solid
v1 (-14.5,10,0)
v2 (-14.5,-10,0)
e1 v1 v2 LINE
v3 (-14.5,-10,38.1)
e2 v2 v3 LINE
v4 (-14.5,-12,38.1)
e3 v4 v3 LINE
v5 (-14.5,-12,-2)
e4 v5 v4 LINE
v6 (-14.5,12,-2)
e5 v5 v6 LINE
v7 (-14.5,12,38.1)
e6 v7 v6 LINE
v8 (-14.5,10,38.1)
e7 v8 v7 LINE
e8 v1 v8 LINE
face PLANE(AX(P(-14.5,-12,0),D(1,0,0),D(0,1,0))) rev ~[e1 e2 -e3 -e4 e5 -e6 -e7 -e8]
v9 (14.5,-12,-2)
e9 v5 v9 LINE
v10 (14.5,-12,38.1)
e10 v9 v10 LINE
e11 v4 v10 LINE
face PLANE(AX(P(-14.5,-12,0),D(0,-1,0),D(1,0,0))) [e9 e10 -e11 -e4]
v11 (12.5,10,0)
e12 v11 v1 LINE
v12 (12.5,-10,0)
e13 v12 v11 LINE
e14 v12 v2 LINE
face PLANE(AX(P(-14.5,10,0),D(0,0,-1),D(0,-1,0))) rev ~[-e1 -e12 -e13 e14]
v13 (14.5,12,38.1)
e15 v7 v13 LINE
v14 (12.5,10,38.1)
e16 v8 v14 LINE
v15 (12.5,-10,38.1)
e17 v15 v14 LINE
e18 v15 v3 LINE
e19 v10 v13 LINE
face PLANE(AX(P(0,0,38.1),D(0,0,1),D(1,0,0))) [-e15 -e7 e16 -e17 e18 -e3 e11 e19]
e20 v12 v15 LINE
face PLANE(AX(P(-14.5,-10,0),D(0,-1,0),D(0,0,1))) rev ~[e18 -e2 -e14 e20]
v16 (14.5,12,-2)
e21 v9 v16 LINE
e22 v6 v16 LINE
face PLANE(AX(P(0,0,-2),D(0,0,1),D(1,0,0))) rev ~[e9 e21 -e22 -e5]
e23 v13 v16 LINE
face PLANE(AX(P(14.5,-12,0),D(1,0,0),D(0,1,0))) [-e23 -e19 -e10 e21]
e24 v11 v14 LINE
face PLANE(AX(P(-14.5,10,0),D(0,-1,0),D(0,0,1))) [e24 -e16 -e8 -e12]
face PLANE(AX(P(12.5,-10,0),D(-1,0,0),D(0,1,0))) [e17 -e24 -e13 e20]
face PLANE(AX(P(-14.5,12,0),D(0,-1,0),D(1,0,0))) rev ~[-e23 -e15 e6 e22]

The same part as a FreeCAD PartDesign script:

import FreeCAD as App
import Part
import Sketcher
Q = App.Units.Quantity

doc = App.newDocument("Part")
params = doc.addObject("Spreadsheet::Sheet", "Params")
for row, (alias, value) in enumerate([
    ("sketch1_width", "29 mm"),
    ("sketch1_width2", "25 mm"),
    ("sketch1_height", "24 mm"),
    ("sketch1_height2", "20 mm"),
    ("pad1_length", "38.1 mm"),
    ("sketch2_width", "29 mm"),
    ("sketch2_height", "24 mm"),
    ("pad2_length", "2 mm"),
    ("sketch3_width", "20 mm"),
    ("sketch3_height", "38.1 mm"),
    ("pocket1_length", "2 mm"),
], start=1):
    params.set(f"A{row}", alias)
    params.set(f"B{row}", "=" + value)
    params.setAlias(f"B{row}", alias)

body = doc.addObject("PartDesign::Body", "Body")

# Sketch on XY plane
sketch1 = body.newObject("Sketcher::SketchObject", "Sketch")
sketch1.AttachmentSupport = (doc.getObject("XY_Plane"), [""])
sketch1.MapMode = "FlatFace"
sketch1.addGeometry([
    Part.LineSegment(App.Vector(-14, 12, 0), App.Vector(-14, -12, 0)),  # 0
    Part.LineSegment(App.Vector(-14, -12, 0), App.Vector(14, -12, 0)),  # 1
    Part.LineSegment(App.Vector(14, -12, 0), App.Vector(14, 12, 0)),  # 2
    Part.LineSegment(App.Vector(14, 12, 0), App.Vector(-14, 12, 0)),  # 3
    Part.LineSegment(App.Vector(12, -10, 0), App.Vector(-12, -10, 0)),  # 4
    Part.LineSegment(App.Vector(-12, -10, 0), App.Vector(-12, 10, 0)),  # 5
    Part.LineSegment(App.Vector(-12, 10, 0), App.Vector(12, 10, 0)),  # 6
    Part.LineSegment(App.Vector(12, 10, 0), App.Vector(12, -10, 0)),  # 7
], False)
sketch1.addConstraint([
    Sketcher.Constraint("Coincident", 0, 2, 1, 1),
    Sketcher.Constraint("Coincident", 1, 2, 2, 1),
    Sketcher.Constraint("Coincident", 2, 2, 3, 1),
    Sketcher.Constraint("Coincident", 3, 2, 0, 1),
    Sketcher.Constraint("Coincident", 4, 2, 5, 1),
    Sketcher.Constraint("Coincident", 5, 2, 6, 1),
    Sketcher.Constraint("Coincident", 6, 2, 7, 1),
    Sketcher.Constraint("Coincident", 7, 2, 4, 1),
    Sketcher.Constraint("Vertical", 0),
    Sketcher.Constraint("Horizontal", 1),
    Sketcher.Constraint("Vertical", 2),
    Sketcher.Constraint("Horizontal", 3),
    Sketcher.Constraint("Horizontal", 4),
    Sketcher.Constraint("Vertical", 5),
    Sketcher.Constraint("Horizontal", 6),
    Sketcher.Constraint("Vertical", 7),
    Sketcher.Constraint("Symmetric", 0, 2, 2, 2, -1, 1),
    Sketcher.Constraint("Symmetric", 4, 2, 6, 2, -1, 1),
    Sketcher.Constraint("DistanceX", 1, 1, 1, 2, Q("29 mm")),
    Sketcher.Constraint("DistanceX", 4, 2, 4, 1, Q("25 mm")),
    Sketcher.Constraint("DistanceY", 0, 2, 0, 1, Q("24 mm")),
    Sketcher.Constraint("DistanceY", 5, 1, 5, 2, Q("20 mm")),
])
sketch1.setExpression("Constraints[18]", "Params.sketch1_width")
sketch1.setExpression("Constraints[19]", "Params.sketch1_width2")
sketch1.setExpression("Constraints[20]", "Params.sketch1_height")
sketch1.setExpression("Constraints[21]", "Params.sketch1_height2")
pad1 = body.newObject("PartDesign::Pad", "Pad")
pad1.Profile = sketch1
pad1.setExpression("Length", "Params.pad1_length")

# Sketch on XY plane
sketch2 = body.newObject("Sketcher::SketchObject", "Sketch001")
sketch2.AttachmentSupport = (doc.getObject("XY_Plane"), [""])
sketch2.MapMode = "FlatFace"
sketch2.addGeometry([
    Part.LineSegment(App.Vector(-14, 12, 0), App.Vector(-14, -12, 0)),
    Part.LineSegment(App.Vector(-14, -12, 0), App.Vector(14, -12, 0)),
    Part.LineSegment(App.Vector(14, -12, 0), App.Vector(14, 12, 0)),
    Part.LineSegment(App.Vector(14, 12, 0), App.Vector(-14, 12, 0)),
], False)
sketch2.addConstraint([
    Sketcher.Constraint("Coincident", 0, 2, 1, 1),
    Sketcher.Constraint("Coincident", 1, 2, 2, 1),
    Sketcher.Constraint("Coincident", 2, 2, 3, 1),
    Sketcher.Constraint("Coincident", 3, 2, 0, 1),
    Sketcher.Constraint("Vertical", 0),
    Sketcher.Constraint("Horizontal", 1),
    Sketcher.Constraint("Vertical", 2),
    Sketcher.Constraint("Horizontal", 3),
    Sketcher.Constraint("Symmetric", 0, 2, 2, 2, -1, 1),
    Sketcher.Constraint("DistanceX", 1, 1, 1, 2, Q("29 mm")),
    Sketcher.Constraint("DistanceY", 0, 2, 0, 1, Q("24 mm")),
])
sketch2.setExpression("Constraints[9]", "Params.sketch2_width")
sketch2.setExpression("Constraints[10]", "Params.sketch2_height")
pad2 = body.newObject("PartDesign::Pad", "Pad001")
pad2.Profile = sketch2
pad2.setExpression("Length", "Params.pad2_length")
pad2.Reversed = True

# Sketch on YZ plane
sketch3 = body.newObject("Sketcher::SketchObject", "Sketch002")
sketch3.AttachmentSupport = (doc.getObject("YZ_Plane"), [""])
sketch3.MapMode = "FlatFace"
sketch3.AttachmentOffset = App.Placement(App.Vector(0, 0, -14.5), App.Rotation())
sketch3.addGeometry([
    Part.LineSegment(App.Vector(10, 38, 0), App.Vector(10, 0, 0)),
    Part.LineSegment(App.Vector(10, 0, 0), App.Vector(-10, 0, 0)),
    Part.LineSegment(App.Vector(-10, 0, 0), App.Vector(-10, 38, 0)),
    Part.LineSegment(App.Vector(-10, 38, 0), App.Vector(10, 38, 0)),
], False)
sketch3.addConstraint([
    Sketcher.Constraint("Coincident", 0, 2, 1, 1),
    Sketcher.Constraint("Coincident", 1, 2, 2, 1),
    Sketcher.Constraint("Coincident", 2, 2, 3, 1),
    Sketcher.Constraint("Coincident", 3, 2, 0, 1),
    Sketcher.Constraint("Vertical", 0),
    Sketcher.Constraint("Horizontal", 1),
    Sketcher.Constraint("Vertical", 2),
    Sketcher.Constraint("Horizontal", 3),
    Sketcher.Constraint("Symmetric", 0, 2, 1, 2, -1, 1),
    Sketcher.Constraint("DistanceX", 1, 2, 1, 1, Q("20 mm")),
    Sketcher.Constraint("DistanceY", 0, 2, 0, 1, Q("38.1 mm")),
])
sketch3.setExpression("Constraints[9]", "Params.sketch3_width")
sketch3.setExpression("Constraints[10]", "Params.sketch3_height")
pocket1 = body.newObject("PartDesign::Pocket", "Pocket")
pocket1.Profile = sketch3
pocket1.setExpression("Length", "Params.pocket1_length")
pocket1.Reversed = True

doc.recompute()
